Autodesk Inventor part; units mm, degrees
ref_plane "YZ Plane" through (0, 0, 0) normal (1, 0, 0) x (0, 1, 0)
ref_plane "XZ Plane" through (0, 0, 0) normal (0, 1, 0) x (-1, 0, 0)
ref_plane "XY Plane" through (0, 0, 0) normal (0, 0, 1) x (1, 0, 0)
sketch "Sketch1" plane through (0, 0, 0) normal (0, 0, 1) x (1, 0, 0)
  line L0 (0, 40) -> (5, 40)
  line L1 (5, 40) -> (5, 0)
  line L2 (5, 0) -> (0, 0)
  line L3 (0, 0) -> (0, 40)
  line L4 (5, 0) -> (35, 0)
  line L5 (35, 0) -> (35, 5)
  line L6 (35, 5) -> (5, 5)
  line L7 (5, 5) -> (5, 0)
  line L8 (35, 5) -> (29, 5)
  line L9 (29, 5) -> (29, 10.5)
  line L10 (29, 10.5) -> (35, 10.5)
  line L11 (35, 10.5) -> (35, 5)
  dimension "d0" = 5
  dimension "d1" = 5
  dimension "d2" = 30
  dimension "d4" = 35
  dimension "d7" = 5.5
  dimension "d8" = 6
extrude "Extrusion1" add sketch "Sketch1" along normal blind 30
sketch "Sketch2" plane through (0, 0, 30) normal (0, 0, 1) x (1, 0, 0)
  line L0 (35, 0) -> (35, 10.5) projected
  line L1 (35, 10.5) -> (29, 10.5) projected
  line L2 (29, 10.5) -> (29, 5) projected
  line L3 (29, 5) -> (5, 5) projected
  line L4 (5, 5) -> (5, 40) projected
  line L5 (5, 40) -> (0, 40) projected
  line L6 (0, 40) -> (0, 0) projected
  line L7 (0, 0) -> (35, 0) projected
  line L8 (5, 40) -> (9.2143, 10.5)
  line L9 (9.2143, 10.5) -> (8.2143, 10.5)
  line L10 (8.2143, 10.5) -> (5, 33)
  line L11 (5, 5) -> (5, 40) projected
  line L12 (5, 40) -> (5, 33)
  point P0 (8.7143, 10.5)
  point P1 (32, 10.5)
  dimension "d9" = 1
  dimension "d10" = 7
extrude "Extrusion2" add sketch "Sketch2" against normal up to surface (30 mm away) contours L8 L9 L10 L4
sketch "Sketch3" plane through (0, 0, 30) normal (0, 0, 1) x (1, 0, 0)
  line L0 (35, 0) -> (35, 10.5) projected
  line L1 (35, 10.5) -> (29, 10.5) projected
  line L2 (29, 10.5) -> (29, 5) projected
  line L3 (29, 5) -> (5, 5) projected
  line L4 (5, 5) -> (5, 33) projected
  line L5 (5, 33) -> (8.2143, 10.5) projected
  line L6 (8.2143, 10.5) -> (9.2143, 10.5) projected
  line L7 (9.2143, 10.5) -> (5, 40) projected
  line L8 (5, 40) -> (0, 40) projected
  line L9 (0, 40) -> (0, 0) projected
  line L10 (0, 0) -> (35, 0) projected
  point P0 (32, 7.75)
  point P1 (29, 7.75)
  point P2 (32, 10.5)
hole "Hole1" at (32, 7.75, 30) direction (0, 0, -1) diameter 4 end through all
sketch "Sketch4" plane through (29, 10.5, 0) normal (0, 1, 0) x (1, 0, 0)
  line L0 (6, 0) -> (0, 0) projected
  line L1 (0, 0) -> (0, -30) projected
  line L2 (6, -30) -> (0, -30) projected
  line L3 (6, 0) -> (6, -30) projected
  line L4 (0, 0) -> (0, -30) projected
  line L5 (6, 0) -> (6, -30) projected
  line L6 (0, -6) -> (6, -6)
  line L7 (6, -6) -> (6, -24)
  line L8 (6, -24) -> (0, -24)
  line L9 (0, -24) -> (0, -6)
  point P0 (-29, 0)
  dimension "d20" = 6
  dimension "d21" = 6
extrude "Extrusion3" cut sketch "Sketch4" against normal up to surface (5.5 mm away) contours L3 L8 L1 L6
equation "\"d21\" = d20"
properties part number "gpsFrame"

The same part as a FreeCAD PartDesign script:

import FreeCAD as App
import Part
import Sketcher

V = App.Vector


def add_polygon(sketch, points):
    """Adds a closed chain of lines whose ends are joined by coincident constraints."""
    first, n = sketch.GeometryCount, len(points)
    for a, b in zip(points, points[1:] + points[:1]):
        sketch.addGeometry(Part.LineSegment(App.Vector(*a, 0), App.Vector(*b, 0)), False)
    for i in range(n):
        sketch.addConstraint(Sketcher.Constraint("Coincident", first + i, 2, first + (i + 1) % n, 1))

doc = App.newDocument("Part")
body = doc.addObject("PartDesign::Body", "Body")

sketch1 = body.newObject("Sketcher::SketchObject", "Sketch")
sketch1.AttachmentSupport = (doc.getObject("XY_Plane"), [""])
sketch1.MapMode = "FlatFace"
add_polygon(sketch1, [(5, 40), (0, 40), (0, 0), (35, 0), (35, 10), (29, 10), (29, 5), (5, 5)])
sketch1.addConstraint([
    Sketcher.Constraint("Horizontal", 0),
    Sketcher.Constraint("Vertical", 1),
    Sketcher.Constraint("Horizontal", 2),
    Sketcher.Constraint("Vertical", 3),
    Sketcher.Constraint("Horizontal", 4),
    Sketcher.Constraint("Vertical", 5),
    Sketcher.Constraint("Horizontal", 6),
    Sketcher.Constraint("Vertical", 7),
    Sketcher.Constraint("Coincident", 1, 2, -1, 1),
    Sketcher.Constraint("Equal", 2, 7),
    Sketcher.Constraint("DistanceX", 0, 2, 0, 1, 5.0),
    Sketcher.Constraint("DistanceX", 2, 1, 2, 2, 35.0),
    Sketcher.Constraint("DistanceX", 4, 2, 4, 1, 6.0),
    Sketcher.Constraint("DistanceY", 5, 2, 5, 1, 5.5),
    Sketcher.Constraint("DistanceY", -1, 1, 5, 2, 5.0),
])
pad1 = body.newObject("PartDesign::Pad", "Pad")
pad1.Profile = sketch1
pad1.Length = 30

sketch2 = body.newObject("Sketcher::SketchObject", "Sketch001")
sketch2.AttachmentSupport = (doc.getObject("XY_Plane"), [""])
sketch2.MapMode = "FlatFace"
sketch2.AttachmentOffset = App.Placement(V(0, 0, 30), App.Rotation())
add_polygon(sketch2, [(9.2, 10.5), (5, 40), (5, 33), (8.2, 10.5)])
sketch2.addConstraint([
    Sketcher.Constraint("Vertical", 1),
    Sketcher.Constraint("Horizontal", 3),
    Sketcher.Constraint("Parallel", 0, 2),
    Sketcher.Constraint("DistanceX", 3, 1, 3, 2, 1.0),
    Sketcher.Constraint("DistanceY", 1, 2, 1, 1, 7.0),
    Sketcher.Constraint("DistanceX", -1, 1, 0, 2, 5.0),
    Sketcher.Constraint("DistanceY", -1, 1, 0, 2, 40.0),
    Sketcher.Constraint("DistanceY", -1, 1, 2, 2, 10.5),
])
pad2 = body.newObject("PartDesign::Pad", "Pad001")
pad2.Profile = sketch2
pad2.Length = 30
pad2.Reversed = True

sketch3 = body.newObject("Sketcher::SketchObject", "Sketch002")
sketch3.AttachmentSupport = (doc.getObject("XY_Plane"), [""])
sketch3.MapMode = "FlatFace"
sketch3.AttachmentOffset = App.Placement(V(0, 0, 30), App.Rotation())
sketch3.addGeometry(Part.Circle(V(32, 7.8, 0), V(0, 0, 1), 2), False)
sketch3.addConstraint([
    Sketcher.Constraint("Diameter", 0, 4.0),
    Sketcher.Constraint("DistanceX", -1, 1, 0, 3, 32.0),
    Sketcher.Constraint("DistanceY", -1, 1, 0, 3, 7.75),
])
doc.recompute()
hole = body.newObject("PartDesign::Hole", "Hole")
hole.Profile = sketch3
hole.ThreadType = "None"
hole.Diameter = 4
hole.DepthType = "ThroughAll"

sketch4 = body.newObject("Sketcher::SketchObject", "Sketch003")
sketch4.AttachmentSupport = (doc.getObject("XZ_Plane"), [""])
sketch4.MapMode = "FlatFace"
sketch4.AttachmentOffset = App.Placement(V(0, 0, -10.5), App.Rotation())
add_polygon(sketch4, [(35, 24), (35, 6), (29, 6), (29, 24)])
sketch4.addConstraint([
    Sketcher.Constraint("Vertical", 0),
    Sketcher.Constraint("Horizontal", 1),
    Sketcher.Constraint("Vertical", 2),
    Sketcher.Constraint("Horizontal", 3),
    Sketcher.Constraint("DistanceX", 1, 2, 1, 1, 6.0),
    Sketcher.Constraint("DistanceY", -1, 1, 0, 2, 6.0),
    Sketcher.Constraint("DistanceY", 0, 2, 0, 1, 18.0),
    Sketcher.Constraint("DistanceX", -1, 1, 0, 2, 35.0),
])
pocket1 = body.newObject("PartDesign::Pocket", "Pocket")
pocket1.Profile = sketch4
pocket1.Length = 5.5
pocket1.Reversed = True

doc.recompute()
